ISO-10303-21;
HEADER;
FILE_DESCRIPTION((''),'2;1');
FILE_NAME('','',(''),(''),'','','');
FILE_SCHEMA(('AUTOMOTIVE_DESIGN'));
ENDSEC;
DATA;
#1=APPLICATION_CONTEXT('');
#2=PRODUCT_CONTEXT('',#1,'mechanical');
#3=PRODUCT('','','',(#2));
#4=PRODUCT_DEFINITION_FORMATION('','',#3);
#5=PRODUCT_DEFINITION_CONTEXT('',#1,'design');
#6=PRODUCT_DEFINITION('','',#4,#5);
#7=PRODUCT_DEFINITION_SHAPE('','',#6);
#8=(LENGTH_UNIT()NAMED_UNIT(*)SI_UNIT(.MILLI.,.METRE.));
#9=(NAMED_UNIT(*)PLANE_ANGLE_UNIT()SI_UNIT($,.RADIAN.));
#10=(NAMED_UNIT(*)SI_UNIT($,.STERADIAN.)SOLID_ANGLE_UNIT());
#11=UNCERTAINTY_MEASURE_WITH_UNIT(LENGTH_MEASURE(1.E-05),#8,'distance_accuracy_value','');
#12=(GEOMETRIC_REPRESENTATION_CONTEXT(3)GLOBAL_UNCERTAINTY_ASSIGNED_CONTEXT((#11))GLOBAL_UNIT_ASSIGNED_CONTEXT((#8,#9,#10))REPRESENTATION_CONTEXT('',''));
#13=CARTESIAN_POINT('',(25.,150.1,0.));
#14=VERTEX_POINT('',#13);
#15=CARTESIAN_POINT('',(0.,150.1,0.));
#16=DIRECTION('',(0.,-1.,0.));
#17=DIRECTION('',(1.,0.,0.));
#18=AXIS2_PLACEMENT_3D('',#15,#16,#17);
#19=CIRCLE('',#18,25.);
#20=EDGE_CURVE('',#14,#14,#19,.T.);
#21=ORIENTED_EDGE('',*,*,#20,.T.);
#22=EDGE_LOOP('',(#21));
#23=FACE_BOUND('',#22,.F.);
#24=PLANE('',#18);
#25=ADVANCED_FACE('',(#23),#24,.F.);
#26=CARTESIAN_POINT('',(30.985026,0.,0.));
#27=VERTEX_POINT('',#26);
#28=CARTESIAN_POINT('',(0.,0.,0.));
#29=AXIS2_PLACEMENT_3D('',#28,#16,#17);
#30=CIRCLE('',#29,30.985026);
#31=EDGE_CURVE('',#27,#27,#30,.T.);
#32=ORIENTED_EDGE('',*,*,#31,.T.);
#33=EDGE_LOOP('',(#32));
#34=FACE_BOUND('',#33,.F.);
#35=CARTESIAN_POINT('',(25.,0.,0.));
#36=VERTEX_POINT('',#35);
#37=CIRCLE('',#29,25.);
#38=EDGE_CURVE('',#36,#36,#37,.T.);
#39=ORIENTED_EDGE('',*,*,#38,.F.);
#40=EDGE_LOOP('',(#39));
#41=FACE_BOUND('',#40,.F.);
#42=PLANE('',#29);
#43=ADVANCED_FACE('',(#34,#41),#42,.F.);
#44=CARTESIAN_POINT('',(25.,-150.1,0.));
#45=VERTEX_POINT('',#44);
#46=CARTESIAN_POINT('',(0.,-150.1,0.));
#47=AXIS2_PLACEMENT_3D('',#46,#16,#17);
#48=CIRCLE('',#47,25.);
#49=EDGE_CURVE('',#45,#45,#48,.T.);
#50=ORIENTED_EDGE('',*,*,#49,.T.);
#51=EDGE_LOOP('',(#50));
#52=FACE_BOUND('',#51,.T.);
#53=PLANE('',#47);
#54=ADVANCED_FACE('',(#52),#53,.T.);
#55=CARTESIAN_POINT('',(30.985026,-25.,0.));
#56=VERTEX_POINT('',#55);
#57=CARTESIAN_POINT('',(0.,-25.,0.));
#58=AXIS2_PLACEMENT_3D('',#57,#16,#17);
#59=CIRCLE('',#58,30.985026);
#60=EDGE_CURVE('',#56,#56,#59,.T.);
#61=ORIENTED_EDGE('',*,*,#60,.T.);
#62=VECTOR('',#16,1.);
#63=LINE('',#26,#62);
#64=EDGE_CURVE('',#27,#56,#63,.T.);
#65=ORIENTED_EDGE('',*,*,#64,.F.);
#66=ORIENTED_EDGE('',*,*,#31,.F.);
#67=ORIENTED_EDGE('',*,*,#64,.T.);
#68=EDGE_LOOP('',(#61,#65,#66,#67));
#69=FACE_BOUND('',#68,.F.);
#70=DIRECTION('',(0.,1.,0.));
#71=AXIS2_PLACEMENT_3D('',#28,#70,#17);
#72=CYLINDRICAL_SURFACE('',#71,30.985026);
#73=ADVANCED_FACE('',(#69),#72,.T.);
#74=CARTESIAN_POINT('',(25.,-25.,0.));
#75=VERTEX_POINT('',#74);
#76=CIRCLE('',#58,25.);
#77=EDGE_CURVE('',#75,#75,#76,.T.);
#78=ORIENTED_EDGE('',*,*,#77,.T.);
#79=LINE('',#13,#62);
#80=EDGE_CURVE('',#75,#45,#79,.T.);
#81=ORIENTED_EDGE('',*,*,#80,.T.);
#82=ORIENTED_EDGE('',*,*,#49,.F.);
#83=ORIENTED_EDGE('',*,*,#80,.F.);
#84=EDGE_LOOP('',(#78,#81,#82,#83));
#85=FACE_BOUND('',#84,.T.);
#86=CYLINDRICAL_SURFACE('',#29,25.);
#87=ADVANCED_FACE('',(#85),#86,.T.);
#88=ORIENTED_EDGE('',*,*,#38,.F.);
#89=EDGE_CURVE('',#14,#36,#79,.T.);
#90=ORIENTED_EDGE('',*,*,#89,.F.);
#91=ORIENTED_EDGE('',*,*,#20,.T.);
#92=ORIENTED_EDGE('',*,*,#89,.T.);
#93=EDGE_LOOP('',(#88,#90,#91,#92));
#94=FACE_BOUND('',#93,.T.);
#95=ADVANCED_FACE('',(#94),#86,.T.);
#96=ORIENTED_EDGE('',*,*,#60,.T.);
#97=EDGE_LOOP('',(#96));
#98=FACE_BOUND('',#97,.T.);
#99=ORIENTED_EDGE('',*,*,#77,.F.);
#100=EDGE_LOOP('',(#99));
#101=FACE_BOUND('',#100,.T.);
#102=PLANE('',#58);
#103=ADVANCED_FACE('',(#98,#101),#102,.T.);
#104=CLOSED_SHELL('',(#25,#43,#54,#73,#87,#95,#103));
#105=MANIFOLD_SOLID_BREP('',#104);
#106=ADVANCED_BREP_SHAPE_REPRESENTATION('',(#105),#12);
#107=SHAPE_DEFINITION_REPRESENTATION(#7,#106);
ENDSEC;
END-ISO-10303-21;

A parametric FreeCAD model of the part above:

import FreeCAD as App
import Part
import Sketcher

V = App.Vector

doc = App.newDocument("Part")
body = doc.addObject("PartDesign::Body", "Body")

# Sketch on XZ plane
sketch1 = doc.addObject("Sketcher::SketchObject", "Sketch")
body.addObject(sketch1)
sketch1.AttachmentSupport = (doc.XZ_Plane, [""])
sketch1.MapMode = "FlatFace"
sketch1.addGeometry(Part.Circle(V(0, 0, 0), V(0, 0, 1), 25), False)
sketch1.addConstraint([
    Sketcher.Constraint("Coincident", 0, 3, -1, 1),
    Sketcher.Constraint("Diameter", 0, 50.0),
])
pad1 = doc.addObject("PartDesign::Pad", "Pad")
body.addObject(pad1)
pad1.Profile = sketch1
pad1.Length = 300.2
pad1.Midplane = True

# Sketch on XZ plane
sketch2 = doc.addObject("Sketcher::SketchObject", "Sketch001")
body.addObject(sketch2)
sketch2.AttachmentSupport = (doc.XZ_Plane, [""])
sketch2.MapMode = "FlatFace"
sketch2.addGeometry([
    Part.Circle(V(0, 0, 0), V(0, 0, 1), 30.985026),
    Part.Circle(V(0, 0, 0), V(0, 0, 1), 25),
], False)
sketch2.addConstraint([
    Sketcher.Constraint("Coincident", 0, 3, -1, 1),
    Sketcher.Constraint("Coincident", 1, 3, -1, 1),
    Sketcher.Constraint("Diameter", 1, 50.0),
    Sketcher.Constraint("Diameter", 0, 61.970052),
])
pad2 = doc.addObject("PartDesign::Pad", "Pad001")
body.addObject(pad2)
pad2.Profile = sketch2
pad2.Length = 25

doc.recompute()
